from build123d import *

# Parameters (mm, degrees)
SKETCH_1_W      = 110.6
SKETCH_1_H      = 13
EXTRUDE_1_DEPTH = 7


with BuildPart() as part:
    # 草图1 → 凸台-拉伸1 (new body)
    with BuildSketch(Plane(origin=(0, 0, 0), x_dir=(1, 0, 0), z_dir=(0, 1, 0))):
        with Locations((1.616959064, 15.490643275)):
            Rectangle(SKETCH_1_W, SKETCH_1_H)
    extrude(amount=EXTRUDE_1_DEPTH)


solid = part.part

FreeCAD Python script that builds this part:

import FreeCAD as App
import Part
import Sketcher
Q = App.Units.Quantity

doc = App.newDocument("Part")
params = doc.addObject("Spreadsheet::Sheet", "Params")
for row, (alias, value) in enumerate([
    ("sketch1_height", "13 mm"),
    ("sketch1_width", "110.6 mm"),
    ("pad1_length", "7 mm"),
], start=1):
    params.set(f"A{row}", alias)
    params.set(f"B{row}", "=" + value)
    params.setAlias(f"B{row}", alias)

body = doc.addObject("PartDesign::Body", "Body")

# Sketch on XZ plane
sketch1 = body.newObject("Sketcher::SketchObject", "Sketch")
sketch1.AttachmentSupport = (doc.getObject("XZ_Plane"), [""])
sketch1.MapMode = "FlatFace"
sketch1.addGeometry([
    Part.LineSegment(App.Vector(-54, -22, 0), App.Vector(-54, -9, 0)),
    Part.LineSegment(App.Vector(-54, -9, 0), App.Vector(57, -9, 0)),
    Part.LineSegment(App.Vector(57, -9, 0), App.Vector(57, -22, 0)),
    Part.LineSegment(App.Vector(57, -22, 0), App.Vector(-54, -22, 0)),
], False)
sketch1.addConstraint([
    Sketcher.Constraint("Coincident", 0, 2, 1, 1),
    Sketcher.Constraint("Coincident", 1, 2, 2, 1),
    Sketcher.Constraint("Coincident", 2, 2, 3, 1),
    Sketcher.Constraint("Coincident", 3, 2, 0, 1),
    Sketcher.Constraint("Vertical", 0),
    Sketcher.Constraint("Horizontal", 1),
    Sketcher.Constraint("Vertical", 2),
    Sketcher.Constraint("Horizontal", 3),
    Sketcher.Constraint("DistanceY", 0, 1, 0, 2, Q("13 mm")),
    Sketcher.Constraint("DistanceX", 1, 1, 1, 2, Q("110.6 mm")),
    Sketcher.Constraint("DistanceX", 0, 2, -1, 1, Q("53.683041 mm")),
    Sketcher.Constraint("DistanceY", 0, 2, -1, 1, Q("8.990643 mm")),
])
sketch1.setExpression("Constraints[8]", "Params.sketch1_height")
sketch1.setExpression("Constraints[9]", "Params.sketch1_width")
pad1 = body.newObject("PartDesign::Pad", "Pad")
pad1.Profile = sketch1
pad1.setExpression("Length", "Params.pad1_length")
pad1.Reversed = True

doc.recompute()
